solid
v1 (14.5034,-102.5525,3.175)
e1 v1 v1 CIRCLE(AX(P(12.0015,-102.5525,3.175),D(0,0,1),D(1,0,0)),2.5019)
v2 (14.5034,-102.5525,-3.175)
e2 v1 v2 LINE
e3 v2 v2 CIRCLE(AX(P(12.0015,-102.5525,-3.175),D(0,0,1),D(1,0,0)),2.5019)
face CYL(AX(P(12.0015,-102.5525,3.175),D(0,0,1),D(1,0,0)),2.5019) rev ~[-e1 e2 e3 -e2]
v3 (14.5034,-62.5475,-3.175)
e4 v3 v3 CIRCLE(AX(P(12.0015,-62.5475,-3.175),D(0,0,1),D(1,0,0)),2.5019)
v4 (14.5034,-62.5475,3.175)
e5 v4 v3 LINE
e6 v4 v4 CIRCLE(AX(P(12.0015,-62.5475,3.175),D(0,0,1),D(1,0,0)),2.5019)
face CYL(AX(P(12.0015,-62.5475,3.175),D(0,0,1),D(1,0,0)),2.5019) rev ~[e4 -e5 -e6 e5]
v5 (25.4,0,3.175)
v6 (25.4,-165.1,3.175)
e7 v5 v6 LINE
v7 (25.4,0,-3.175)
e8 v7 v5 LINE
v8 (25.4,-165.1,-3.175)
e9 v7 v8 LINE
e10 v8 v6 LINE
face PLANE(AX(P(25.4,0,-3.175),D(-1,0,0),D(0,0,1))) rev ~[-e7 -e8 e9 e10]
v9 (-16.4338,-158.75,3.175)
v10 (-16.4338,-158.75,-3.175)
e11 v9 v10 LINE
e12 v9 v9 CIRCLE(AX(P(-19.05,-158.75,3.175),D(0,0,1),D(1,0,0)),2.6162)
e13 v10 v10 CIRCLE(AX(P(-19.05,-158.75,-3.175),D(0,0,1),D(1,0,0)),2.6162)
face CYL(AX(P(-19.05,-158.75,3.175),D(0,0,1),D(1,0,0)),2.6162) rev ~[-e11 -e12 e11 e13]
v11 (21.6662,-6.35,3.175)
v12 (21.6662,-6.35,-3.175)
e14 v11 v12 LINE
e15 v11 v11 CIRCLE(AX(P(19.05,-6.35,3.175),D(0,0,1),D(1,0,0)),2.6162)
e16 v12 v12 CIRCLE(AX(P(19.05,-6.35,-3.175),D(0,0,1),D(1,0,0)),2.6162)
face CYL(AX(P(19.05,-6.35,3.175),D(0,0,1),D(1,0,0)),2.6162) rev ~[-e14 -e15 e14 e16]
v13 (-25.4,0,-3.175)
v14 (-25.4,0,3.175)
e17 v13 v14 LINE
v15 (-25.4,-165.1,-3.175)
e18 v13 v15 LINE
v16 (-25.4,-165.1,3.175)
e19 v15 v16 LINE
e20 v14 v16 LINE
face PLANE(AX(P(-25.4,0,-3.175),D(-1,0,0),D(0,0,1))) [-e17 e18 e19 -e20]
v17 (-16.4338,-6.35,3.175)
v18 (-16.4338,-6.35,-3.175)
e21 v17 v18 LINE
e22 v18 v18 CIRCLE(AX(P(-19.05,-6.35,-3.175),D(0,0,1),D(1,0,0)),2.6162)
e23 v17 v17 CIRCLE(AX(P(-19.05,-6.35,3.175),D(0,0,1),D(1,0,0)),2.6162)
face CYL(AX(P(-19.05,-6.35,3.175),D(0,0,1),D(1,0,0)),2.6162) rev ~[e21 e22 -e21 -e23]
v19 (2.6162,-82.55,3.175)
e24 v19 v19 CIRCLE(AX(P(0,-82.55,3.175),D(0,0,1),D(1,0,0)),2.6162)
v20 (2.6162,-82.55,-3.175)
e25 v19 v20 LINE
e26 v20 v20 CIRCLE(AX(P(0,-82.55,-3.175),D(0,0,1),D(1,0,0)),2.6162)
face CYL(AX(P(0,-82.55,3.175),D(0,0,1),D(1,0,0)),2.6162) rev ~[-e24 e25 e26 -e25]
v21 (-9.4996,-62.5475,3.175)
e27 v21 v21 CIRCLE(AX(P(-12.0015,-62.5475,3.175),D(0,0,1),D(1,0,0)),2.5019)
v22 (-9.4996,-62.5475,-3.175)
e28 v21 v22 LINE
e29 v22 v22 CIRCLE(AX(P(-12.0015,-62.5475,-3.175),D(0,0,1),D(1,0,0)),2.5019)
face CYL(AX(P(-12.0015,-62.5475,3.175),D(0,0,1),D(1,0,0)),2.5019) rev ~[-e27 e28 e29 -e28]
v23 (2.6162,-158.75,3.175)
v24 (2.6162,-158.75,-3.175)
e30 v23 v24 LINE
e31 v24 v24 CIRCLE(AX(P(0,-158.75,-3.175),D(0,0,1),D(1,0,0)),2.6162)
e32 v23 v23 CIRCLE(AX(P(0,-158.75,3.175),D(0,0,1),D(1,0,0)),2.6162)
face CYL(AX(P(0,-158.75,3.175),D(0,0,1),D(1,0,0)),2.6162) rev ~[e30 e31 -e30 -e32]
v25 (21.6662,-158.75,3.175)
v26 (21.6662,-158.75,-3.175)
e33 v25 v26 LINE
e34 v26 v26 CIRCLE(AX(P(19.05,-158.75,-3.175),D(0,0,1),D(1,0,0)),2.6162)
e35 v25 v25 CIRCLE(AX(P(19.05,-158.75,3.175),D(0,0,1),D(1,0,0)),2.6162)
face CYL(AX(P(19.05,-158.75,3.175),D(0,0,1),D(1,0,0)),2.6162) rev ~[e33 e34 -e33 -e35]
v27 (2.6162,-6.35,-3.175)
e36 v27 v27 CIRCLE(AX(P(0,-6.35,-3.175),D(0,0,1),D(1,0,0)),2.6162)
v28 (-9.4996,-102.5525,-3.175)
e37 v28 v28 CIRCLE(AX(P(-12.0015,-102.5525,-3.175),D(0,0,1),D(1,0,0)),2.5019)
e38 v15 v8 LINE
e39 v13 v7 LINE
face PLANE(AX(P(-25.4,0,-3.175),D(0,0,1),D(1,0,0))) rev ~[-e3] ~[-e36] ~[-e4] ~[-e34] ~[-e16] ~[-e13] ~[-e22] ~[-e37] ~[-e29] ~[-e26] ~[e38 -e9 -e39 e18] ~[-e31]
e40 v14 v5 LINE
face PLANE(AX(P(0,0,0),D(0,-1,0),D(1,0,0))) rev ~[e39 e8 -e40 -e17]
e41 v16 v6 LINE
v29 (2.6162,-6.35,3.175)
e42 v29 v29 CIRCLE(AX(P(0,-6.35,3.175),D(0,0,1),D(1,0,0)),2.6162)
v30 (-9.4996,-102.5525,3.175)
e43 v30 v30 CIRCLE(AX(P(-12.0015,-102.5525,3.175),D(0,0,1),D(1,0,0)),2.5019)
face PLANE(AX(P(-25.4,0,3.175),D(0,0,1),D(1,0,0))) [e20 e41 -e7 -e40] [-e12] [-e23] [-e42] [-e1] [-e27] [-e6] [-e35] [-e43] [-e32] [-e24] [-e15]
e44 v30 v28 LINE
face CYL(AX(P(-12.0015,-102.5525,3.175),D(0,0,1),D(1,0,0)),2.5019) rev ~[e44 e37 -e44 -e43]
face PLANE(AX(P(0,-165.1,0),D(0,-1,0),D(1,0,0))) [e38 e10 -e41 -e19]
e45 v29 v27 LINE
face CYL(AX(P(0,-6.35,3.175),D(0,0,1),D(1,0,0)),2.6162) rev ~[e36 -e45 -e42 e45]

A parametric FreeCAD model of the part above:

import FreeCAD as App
import Part
import Sketcher
from FreeCAD import Vector
Q = App.Units.Quantity

doc = App.newDocument("Part")
body = doc.addObject("PartDesign::Body", "Body")

# Sketch on XZ plane
sketch1 = body.newObject("Sketcher::SketchObject", "Sketch")
sketch1.AttachmentSupport = (doc.getObject("XZ_Plane"), [""])
sketch1.MapMode = "FlatFace"
sketch1.addGeometry([
    Part.LineSegment(Vector(-25.4, 3.175, 0), Vector(-25.4, -3.175, 0)),
    Part.LineSegment(Vector(-25.4, -3.175, 0), Vector(25.4, -3.175, 0)),
    Part.LineSegment(Vector(25.4, -3.175, 0), Vector(25.4, 3.175, 0)),
    Part.LineSegment(Vector(25.4, 3.175, 0), Vector(-25.4, 3.175, 0)),
], False)
sketch1.addConstraint([
    Sketcher.Constraint("Coincident", 0, 2, 1, 1),
    Sketcher.Constraint("Coincident", 1, 2, 2, 1),
    Sketcher.Constraint("Coincident", 2, 2, 3, 1),
    Sketcher.Constraint("Coincident", 3, 2, 0, 1),
    Sketcher.Constraint("Vertical", 0),
    Sketcher.Constraint("Horizontal", 1),
    Sketcher.Constraint("Vertical", 2),
    Sketcher.Constraint("Horizontal", 3),
    Sketcher.Constraint("Symmetric", 0, 2, 2, 2, -1, 1),
    Sketcher.Constraint("DistanceX", 1, 1, 1, 2, Q("2 in")),
    Sketcher.Constraint("DistanceY", 0, 2, 0, 1, Q("0.25 in")),
])
pad1 = body.newObject("PartDesign::Pad", "Pad")
pad1.Profile = sketch1
pad1.Length = Q("6.5 in")

# Sketch on XY plane
sketch2 = body.newObject("Sketcher::SketchObject", "Sketch001")
sketch2.AttachmentSupport = (doc.getObject("XY_Plane"), [""])
sketch2.MapMode = "FlatFace"
sketch2.AttachmentOffset = App.Placement(Vector(0, 0, 0.125 * 25.4), App.Rotation())
sketch2.addGeometry([
    Part.Circle(Vector(0, -158.75, 0), Vector(0, 0, 1), 2.6162),  # 0
    Part.Circle(Vector(0, -6.35, 0), Vector(0, 0, 1), 2.6162),  # 1
    Part.Circle(Vector(-12.0015, -102.5525, 0), Vector(0, 0, 1), 2.5019),  # 2
    Part.Circle(Vector(12.0015, -102.5525, 0), Vector(0, 0, 1), 2.5019),  # 3
    Part.Circle(Vector(12.0015, -62.5475, 0), Vector(0, 0, 1), 2.5019),  # 4
    Part.Circle(Vector(-12.0015, -62.5475, 0), Vector(0, 0, 1), 2.5019),  # 5
    Part.Circle(Vector(0, -82.55, 0), Vector(0, 0, 1), 2.6162),  # 6
    Part.Circle(Vector(-19.05, -158.75, 0), Vector(0, 0, 1), 2.6162),  # 7
    Part.Circle(Vector(19.05, -158.75, 0), Vector(0, 0, 1), 2.6162),  # 8
    Part.Circle(Vector(-19.05, -6.35, 0), Vector(0, 0, 1), 2.6162),  # 9
    Part.Circle(Vector(19.05, -6.35, 0), Vector(0, 0, 1), 2.6162),  # 10
], False)
sketch2.addConstraint([
    Sketcher.Constraint("Equal", 0, 1),
    Sketcher.Constraint("Equal", 2, 3),
    Sketcher.Constraint("Equal", 3, 4),
    Sketcher.Constraint("Equal", 4, 5),
    Sketcher.Constraint("Equal", 1, 6),
    Sketcher.Constraint("Equal", 6, 7),
    Sketcher.Constraint("Equal", 7, 8),
    Sketcher.Constraint("Equal", 8, 9),
    Sketcher.Constraint("Equal", 9, 10),
    Sketcher.Constraint("Symmetric", 2, 3, 3, 3, -2),
    Sketcher.Constraint("Symmetric", 4, 3, 5, 3, -2),
    Sketcher.Constraint("Symmetric", 7, 3, 8, 3, -2),
    Sketcher.Constraint("Symmetric", 9, 3, 10, 3, -2),
    Sketcher.Constraint("PointOnObject", 0, 3, -2),
    Sketcher.Constraint("PointOnObject", 1, 3, -2),
    Sketcher.Constraint("PointOnObject", 6, 3, -2),
    Sketcher.Constraint("Horizontal", 0, 3, 7, 3),
    Sketcher.Constraint("Horizontal", 1, 3, 9, 3),
    Sketcher.Constraint("Vertical", 3, 3, 4, 3),
    Sketcher.Constraint("Vertical", 7, 3, 9, 3),
    Sketcher.Constraint("Diameter", 0, Q("0.206 in")),
    Sketcher.Constraint("Diameter", 2, Q("0.197 in")),
    Sketcher.Constraint("DistanceY", 0, 3, 1, 3, Q("6 in")),
    Sketcher.Constraint("DistanceY", 0, 3, 6, 3, Q("3 in")),
    Sketcher.Constraint("DistanceX", 7, 3, 8, 3, Q("1.5 in")),
    Sketcher.Constraint("DistanceY", 0, 3, -1, 1, Q("6.25 in")),
    Sketcher.Constraint("DistanceX", 2, 3, 3, 3, Q("0.945 in")),
    Sketcher.Constraint("DistanceY", 3, 3, 4, 3, Q("1.575 in")),
    Sketcher.Constraint("DistanceY", 2, 3, -1, 1, Q("4.0375 in")),
])
pocket1 = body.newObject("PartDesign::Pocket", "Pocket")
pocket1.Profile = sketch2
pocket1.Type = "ThroughAll"

doc.recompute()
